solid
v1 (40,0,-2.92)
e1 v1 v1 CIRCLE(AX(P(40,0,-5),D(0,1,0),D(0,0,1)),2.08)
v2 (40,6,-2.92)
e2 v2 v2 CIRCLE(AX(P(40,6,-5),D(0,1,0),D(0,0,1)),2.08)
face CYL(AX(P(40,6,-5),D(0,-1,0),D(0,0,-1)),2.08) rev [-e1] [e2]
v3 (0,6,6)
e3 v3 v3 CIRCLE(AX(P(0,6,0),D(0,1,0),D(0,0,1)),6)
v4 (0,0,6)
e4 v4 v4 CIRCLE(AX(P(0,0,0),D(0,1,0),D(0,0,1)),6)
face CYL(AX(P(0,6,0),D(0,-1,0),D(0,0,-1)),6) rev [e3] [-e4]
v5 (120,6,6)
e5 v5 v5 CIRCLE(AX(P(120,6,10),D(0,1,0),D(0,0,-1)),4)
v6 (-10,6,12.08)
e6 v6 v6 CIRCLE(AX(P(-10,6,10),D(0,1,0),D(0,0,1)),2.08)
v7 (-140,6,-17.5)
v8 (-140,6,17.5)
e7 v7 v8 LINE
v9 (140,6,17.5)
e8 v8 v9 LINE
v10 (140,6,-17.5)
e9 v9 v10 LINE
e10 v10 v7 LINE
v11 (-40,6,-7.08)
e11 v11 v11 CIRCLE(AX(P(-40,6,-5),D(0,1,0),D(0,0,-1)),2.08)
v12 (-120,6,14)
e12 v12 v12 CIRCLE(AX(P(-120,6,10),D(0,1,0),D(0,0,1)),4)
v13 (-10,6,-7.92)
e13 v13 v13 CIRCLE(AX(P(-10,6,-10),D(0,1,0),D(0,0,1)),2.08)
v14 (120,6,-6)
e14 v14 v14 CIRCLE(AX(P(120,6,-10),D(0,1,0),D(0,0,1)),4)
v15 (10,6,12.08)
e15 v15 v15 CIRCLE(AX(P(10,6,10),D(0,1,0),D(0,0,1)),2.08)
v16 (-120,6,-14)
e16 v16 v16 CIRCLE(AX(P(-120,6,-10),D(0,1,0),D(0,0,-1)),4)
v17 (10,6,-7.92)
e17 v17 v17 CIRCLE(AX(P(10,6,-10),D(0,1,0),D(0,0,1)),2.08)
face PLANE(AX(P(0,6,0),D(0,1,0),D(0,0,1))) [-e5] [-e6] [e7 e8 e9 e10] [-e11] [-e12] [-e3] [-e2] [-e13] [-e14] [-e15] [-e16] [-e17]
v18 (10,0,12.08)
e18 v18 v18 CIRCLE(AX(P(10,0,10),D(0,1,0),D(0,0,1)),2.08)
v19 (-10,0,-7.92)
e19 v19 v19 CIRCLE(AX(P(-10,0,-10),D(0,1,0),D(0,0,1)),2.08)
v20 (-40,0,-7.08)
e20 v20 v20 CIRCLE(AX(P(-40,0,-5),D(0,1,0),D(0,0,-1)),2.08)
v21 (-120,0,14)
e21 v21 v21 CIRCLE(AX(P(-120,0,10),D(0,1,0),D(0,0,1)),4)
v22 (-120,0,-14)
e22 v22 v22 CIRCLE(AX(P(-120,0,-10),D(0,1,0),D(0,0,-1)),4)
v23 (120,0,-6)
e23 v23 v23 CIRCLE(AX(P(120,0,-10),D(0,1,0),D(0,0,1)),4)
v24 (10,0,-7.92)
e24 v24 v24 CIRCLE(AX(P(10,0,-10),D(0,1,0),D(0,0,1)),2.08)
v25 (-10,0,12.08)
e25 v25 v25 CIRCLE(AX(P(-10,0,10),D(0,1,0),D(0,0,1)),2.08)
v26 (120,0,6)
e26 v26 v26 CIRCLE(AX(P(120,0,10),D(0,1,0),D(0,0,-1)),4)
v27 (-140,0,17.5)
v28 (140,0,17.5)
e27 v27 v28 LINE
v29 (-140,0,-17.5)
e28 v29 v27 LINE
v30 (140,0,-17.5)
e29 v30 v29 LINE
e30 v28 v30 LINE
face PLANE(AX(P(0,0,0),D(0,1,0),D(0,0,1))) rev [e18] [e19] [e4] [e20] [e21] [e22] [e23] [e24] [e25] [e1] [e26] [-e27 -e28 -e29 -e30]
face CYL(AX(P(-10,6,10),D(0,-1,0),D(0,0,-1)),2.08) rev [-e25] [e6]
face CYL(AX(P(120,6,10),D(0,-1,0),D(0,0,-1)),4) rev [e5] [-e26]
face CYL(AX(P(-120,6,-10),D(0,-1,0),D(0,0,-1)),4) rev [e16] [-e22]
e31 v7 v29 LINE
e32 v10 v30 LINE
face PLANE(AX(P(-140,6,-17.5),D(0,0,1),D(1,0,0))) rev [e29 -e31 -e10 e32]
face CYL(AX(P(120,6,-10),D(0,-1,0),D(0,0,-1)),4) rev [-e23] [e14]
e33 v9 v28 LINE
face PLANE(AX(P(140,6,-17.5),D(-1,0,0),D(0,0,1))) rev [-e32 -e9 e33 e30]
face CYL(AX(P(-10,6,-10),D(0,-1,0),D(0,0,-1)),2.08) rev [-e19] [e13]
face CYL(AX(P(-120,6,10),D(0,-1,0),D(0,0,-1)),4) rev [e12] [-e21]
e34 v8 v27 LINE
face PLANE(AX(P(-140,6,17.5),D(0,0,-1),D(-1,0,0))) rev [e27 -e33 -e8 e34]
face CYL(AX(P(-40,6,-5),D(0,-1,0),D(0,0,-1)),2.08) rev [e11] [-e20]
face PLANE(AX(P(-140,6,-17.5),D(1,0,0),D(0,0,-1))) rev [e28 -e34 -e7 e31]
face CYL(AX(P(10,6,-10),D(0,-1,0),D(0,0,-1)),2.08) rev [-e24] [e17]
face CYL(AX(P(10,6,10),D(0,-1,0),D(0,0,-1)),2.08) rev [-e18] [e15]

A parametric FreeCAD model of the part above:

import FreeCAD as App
import Part
import Sketcher
from FreeCAD import Vector
Q = App.Units.Quantity

doc = App.newDocument("Part")
params = doc.addObject("Spreadsheet::Sheet", "Params")
for row, (alias, value) in enumerate([
    ("sketch1_diameter", "8 mm"),
    ("sketch1_diameter2", "12 mm"),
    ("sketch1_diameter3", "4.16 mm"),
    ("sketch1_width", "280 mm"),
    ("sketch1_height", "35 mm"),
    ("pad1_length", "6 mm"),
], start=1):
    params.set(f"A{row}", alias)
    params.set(f"B{row}", "=" + value)
    params.setAlias(f"B{row}", alias)

body = doc.addObject("PartDesign::Body", "Body")

sketch1 = body.newObject("Sketcher::SketchObject", "Sketch")
sketch1.AttachmentSupport = (doc.getObject("XZ_Plane"), [""])
sketch1.MapMode = "FlatFace"
sketch1.addGeometry(Part.LineSegment(Vector(-140, -17.5, 0), Vector(-140, 17.5, 0)), False)
sketch1.addGeometry(Part.LineSegment(Vector(-140, 17.5, 0), Vector(140, 17.5, 0)), False)
sketch1.addGeometry(Part.LineSegment(Vector(140, 17.5, 0), Vector(140, -17.5, 0)), False)
sketch1.addGeometry(Part.LineSegment(Vector(140, -17.5, 0), Vector(-140, -17.5, 0)), False)
sketch1.addGeometry(Part.Circle(Vector(-120, 10, 0), Vector(0, 0, 1), 4), False)
sketch1.addGeometry(Part.Circle(Vector(-10, 10, 0), Vector(0, 0, 1), 2.1), False)
sketch1.addGeometry(Part.Circle(Vector(10, 10, 0), Vector(0, 0, 1), 2.1), False)
sketch1.addGeometry(Part.Circle(Vector(120, 10, 0), Vector(0, 0, 1), 4), False)
sketch1.addGeometry(Part.Circle(Vector(-40, -5, 0), Vector(0, 0, 1), 2.1), False)
sketch1.addGeometry(Part.Circle(Vector(-120, -10, 0), Vector(0, 0, 1), 4), False)
sketch1.addGeometry(Part.Circle(Vector(-10, -10, 0), Vector(0, 0, 1), 2.1), False)
sketch1.addGeometry(Part.Circle(Vector(0, 0, 0), Vector(0, 0, 1), 6), False)
sketch1.addGeometry(Part.Circle(Vector(40, -5, 0), Vector(0, 0, 1), 2.1), False)
sketch1.addGeometry(Part.Circle(Vector(10, -10, 0), Vector(0, 0, 1), 2.1), False)
sketch1.addGeometry(Part.Circle(Vector(120, -10, 0), Vector(0, 0, 1), 4), False)
sketch1.addConstraint(Sketcher.Constraint("Coincident", 0, 2, 1, 1))
sketch1.addConstraint(Sketcher.Constraint("Coincident", 1, 2, 2, 1))
sketch1.addConstraint(Sketcher.Constraint("Coincident", 2, 2, 3, 1))
sketch1.addConstraint(Sketcher.Constraint("Coincident", 3, 2, 0, 1))
sketch1.addConstraint(Sketcher.Constraint("Vertical", 0))
sketch1.addConstraint(Sketcher.Constraint("Horizontal", 1))
sketch1.addConstraint(Sketcher.Constraint("Vertical", 2))
sketch1.addConstraint(Sketcher.Constraint("Horizontal", 3))
sketch1.addConstraint(Sketcher.Constraint("Coincident", 11, 3, -1, 1))
sketch1.addConstraint(Sketcher.Constraint("Equal", 5, 6))
sketch1.addConstraint(Sketcher.Constraint("Equal", 4, 7))
sketch1.addConstraint(Sketcher.Constraint("Equal", 6, 8))
sketch1.addConstraint(Sketcher.Constraint("Equal", 7, 9))
sketch1.addConstraint(Sketcher.Constraint("Equal", 8, 10))
sketch1.addConstraint(Sketcher.Constraint("Equal", 10, 12))
sketch1.addConstraint(Sketcher.Constraint("Equal", 12, 13))
sketch1.addConstraint(Sketcher.Constraint("Equal", 9, 14))
sketch1.addConstraint(Sketcher.Constraint("Symmetric", 7, 3, 9, 3, -1, 1))
sketch1.addConstraint(Sketcher.Constraint("Symmetric", 6, 3, 10, 3, -1, 1))
sketch1.addConstraint(Sketcher.Constraint("Symmetric", 5, 3, 13, 3, -1, 1))
sketch1.addConstraint(Sketcher.Constraint("Symmetric", 4, 3, 14, 3, -1, 1))
sketch1.addConstraint(Sketcher.Constraint("Symmetric", 0, 2, 2, 2, -1, 1))
sketch1.addConstraint(Sketcher.Constraint("Symmetric", 5, 3, 6, 3, -2))
sketch1.addConstraint(Sketcher.Constraint("Symmetric", 4, 3, 7, 3, -2))
sketch1.addConstraint(Sketcher.Constraint("Symmetric", 8, 3, 12, 3, -2))
sketch1.addConstraint(Sketcher.Constraint("Horizontal", 4, 3, 5, 3))
sketch1.addConstraint(Sketcher.Constraint("Diameter", 4, Q("8 mm")))
sketch1.addConstraint(Sketcher.Constraint("Diameter", 11, Q("12 mm")))
sketch1.addConstraint(Sketcher.Constraint("Diameter", 5, Q("4.16 mm")))
sketch1.addConstraint(Sketcher.Constraint("DistanceX", 1, 1, 1, 2, Q("280 mm")))
sketch1.addConstraint(Sketcher.Constraint("DistanceY", 0, 1, 0, 2, Q("35 mm")))
sketch1.addConstraint(Sketcher.Constraint("DistanceX", 4, 3, -1, 1, Q("120 mm")))
sketch1.addConstraint(Sketcher.Constraint("DistanceY", -1, 1, 4, 3, Q("10 mm")))
sketch1.addConstraint(Sketcher.Constraint("DistanceX", 5, 3, -1, 1, Q("10 mm")))
sketch1.addConstraint(Sketcher.Constraint("DistanceX", 8, 3, -1, 1, Q("40 mm")))
sketch1.addConstraint(Sketcher.Constraint("DistanceY", 8, 3, -1, 1, Q("5 mm")))
sketch1.setExpression("Constraints[26]", "Params.sketch1_diameter")
sketch1.setExpression("Constraints[27]", "Params.sketch1_diameter2")
sketch1.setExpression("Constraints[28]", "Params.sketch1_diameter3")
sketch1.setExpression("Constraints[29]", "Params.sketch1_width")
sketch1.setExpression("Constraints[30]", "Params.sketch1_height")
pad1 = body.newObject("PartDesign::Pad", "Pad")
pad1.Profile = sketch1
pad1.setExpression("Length", "Params.pad1_length")
pad1.Reversed = True

doc.recompute()
